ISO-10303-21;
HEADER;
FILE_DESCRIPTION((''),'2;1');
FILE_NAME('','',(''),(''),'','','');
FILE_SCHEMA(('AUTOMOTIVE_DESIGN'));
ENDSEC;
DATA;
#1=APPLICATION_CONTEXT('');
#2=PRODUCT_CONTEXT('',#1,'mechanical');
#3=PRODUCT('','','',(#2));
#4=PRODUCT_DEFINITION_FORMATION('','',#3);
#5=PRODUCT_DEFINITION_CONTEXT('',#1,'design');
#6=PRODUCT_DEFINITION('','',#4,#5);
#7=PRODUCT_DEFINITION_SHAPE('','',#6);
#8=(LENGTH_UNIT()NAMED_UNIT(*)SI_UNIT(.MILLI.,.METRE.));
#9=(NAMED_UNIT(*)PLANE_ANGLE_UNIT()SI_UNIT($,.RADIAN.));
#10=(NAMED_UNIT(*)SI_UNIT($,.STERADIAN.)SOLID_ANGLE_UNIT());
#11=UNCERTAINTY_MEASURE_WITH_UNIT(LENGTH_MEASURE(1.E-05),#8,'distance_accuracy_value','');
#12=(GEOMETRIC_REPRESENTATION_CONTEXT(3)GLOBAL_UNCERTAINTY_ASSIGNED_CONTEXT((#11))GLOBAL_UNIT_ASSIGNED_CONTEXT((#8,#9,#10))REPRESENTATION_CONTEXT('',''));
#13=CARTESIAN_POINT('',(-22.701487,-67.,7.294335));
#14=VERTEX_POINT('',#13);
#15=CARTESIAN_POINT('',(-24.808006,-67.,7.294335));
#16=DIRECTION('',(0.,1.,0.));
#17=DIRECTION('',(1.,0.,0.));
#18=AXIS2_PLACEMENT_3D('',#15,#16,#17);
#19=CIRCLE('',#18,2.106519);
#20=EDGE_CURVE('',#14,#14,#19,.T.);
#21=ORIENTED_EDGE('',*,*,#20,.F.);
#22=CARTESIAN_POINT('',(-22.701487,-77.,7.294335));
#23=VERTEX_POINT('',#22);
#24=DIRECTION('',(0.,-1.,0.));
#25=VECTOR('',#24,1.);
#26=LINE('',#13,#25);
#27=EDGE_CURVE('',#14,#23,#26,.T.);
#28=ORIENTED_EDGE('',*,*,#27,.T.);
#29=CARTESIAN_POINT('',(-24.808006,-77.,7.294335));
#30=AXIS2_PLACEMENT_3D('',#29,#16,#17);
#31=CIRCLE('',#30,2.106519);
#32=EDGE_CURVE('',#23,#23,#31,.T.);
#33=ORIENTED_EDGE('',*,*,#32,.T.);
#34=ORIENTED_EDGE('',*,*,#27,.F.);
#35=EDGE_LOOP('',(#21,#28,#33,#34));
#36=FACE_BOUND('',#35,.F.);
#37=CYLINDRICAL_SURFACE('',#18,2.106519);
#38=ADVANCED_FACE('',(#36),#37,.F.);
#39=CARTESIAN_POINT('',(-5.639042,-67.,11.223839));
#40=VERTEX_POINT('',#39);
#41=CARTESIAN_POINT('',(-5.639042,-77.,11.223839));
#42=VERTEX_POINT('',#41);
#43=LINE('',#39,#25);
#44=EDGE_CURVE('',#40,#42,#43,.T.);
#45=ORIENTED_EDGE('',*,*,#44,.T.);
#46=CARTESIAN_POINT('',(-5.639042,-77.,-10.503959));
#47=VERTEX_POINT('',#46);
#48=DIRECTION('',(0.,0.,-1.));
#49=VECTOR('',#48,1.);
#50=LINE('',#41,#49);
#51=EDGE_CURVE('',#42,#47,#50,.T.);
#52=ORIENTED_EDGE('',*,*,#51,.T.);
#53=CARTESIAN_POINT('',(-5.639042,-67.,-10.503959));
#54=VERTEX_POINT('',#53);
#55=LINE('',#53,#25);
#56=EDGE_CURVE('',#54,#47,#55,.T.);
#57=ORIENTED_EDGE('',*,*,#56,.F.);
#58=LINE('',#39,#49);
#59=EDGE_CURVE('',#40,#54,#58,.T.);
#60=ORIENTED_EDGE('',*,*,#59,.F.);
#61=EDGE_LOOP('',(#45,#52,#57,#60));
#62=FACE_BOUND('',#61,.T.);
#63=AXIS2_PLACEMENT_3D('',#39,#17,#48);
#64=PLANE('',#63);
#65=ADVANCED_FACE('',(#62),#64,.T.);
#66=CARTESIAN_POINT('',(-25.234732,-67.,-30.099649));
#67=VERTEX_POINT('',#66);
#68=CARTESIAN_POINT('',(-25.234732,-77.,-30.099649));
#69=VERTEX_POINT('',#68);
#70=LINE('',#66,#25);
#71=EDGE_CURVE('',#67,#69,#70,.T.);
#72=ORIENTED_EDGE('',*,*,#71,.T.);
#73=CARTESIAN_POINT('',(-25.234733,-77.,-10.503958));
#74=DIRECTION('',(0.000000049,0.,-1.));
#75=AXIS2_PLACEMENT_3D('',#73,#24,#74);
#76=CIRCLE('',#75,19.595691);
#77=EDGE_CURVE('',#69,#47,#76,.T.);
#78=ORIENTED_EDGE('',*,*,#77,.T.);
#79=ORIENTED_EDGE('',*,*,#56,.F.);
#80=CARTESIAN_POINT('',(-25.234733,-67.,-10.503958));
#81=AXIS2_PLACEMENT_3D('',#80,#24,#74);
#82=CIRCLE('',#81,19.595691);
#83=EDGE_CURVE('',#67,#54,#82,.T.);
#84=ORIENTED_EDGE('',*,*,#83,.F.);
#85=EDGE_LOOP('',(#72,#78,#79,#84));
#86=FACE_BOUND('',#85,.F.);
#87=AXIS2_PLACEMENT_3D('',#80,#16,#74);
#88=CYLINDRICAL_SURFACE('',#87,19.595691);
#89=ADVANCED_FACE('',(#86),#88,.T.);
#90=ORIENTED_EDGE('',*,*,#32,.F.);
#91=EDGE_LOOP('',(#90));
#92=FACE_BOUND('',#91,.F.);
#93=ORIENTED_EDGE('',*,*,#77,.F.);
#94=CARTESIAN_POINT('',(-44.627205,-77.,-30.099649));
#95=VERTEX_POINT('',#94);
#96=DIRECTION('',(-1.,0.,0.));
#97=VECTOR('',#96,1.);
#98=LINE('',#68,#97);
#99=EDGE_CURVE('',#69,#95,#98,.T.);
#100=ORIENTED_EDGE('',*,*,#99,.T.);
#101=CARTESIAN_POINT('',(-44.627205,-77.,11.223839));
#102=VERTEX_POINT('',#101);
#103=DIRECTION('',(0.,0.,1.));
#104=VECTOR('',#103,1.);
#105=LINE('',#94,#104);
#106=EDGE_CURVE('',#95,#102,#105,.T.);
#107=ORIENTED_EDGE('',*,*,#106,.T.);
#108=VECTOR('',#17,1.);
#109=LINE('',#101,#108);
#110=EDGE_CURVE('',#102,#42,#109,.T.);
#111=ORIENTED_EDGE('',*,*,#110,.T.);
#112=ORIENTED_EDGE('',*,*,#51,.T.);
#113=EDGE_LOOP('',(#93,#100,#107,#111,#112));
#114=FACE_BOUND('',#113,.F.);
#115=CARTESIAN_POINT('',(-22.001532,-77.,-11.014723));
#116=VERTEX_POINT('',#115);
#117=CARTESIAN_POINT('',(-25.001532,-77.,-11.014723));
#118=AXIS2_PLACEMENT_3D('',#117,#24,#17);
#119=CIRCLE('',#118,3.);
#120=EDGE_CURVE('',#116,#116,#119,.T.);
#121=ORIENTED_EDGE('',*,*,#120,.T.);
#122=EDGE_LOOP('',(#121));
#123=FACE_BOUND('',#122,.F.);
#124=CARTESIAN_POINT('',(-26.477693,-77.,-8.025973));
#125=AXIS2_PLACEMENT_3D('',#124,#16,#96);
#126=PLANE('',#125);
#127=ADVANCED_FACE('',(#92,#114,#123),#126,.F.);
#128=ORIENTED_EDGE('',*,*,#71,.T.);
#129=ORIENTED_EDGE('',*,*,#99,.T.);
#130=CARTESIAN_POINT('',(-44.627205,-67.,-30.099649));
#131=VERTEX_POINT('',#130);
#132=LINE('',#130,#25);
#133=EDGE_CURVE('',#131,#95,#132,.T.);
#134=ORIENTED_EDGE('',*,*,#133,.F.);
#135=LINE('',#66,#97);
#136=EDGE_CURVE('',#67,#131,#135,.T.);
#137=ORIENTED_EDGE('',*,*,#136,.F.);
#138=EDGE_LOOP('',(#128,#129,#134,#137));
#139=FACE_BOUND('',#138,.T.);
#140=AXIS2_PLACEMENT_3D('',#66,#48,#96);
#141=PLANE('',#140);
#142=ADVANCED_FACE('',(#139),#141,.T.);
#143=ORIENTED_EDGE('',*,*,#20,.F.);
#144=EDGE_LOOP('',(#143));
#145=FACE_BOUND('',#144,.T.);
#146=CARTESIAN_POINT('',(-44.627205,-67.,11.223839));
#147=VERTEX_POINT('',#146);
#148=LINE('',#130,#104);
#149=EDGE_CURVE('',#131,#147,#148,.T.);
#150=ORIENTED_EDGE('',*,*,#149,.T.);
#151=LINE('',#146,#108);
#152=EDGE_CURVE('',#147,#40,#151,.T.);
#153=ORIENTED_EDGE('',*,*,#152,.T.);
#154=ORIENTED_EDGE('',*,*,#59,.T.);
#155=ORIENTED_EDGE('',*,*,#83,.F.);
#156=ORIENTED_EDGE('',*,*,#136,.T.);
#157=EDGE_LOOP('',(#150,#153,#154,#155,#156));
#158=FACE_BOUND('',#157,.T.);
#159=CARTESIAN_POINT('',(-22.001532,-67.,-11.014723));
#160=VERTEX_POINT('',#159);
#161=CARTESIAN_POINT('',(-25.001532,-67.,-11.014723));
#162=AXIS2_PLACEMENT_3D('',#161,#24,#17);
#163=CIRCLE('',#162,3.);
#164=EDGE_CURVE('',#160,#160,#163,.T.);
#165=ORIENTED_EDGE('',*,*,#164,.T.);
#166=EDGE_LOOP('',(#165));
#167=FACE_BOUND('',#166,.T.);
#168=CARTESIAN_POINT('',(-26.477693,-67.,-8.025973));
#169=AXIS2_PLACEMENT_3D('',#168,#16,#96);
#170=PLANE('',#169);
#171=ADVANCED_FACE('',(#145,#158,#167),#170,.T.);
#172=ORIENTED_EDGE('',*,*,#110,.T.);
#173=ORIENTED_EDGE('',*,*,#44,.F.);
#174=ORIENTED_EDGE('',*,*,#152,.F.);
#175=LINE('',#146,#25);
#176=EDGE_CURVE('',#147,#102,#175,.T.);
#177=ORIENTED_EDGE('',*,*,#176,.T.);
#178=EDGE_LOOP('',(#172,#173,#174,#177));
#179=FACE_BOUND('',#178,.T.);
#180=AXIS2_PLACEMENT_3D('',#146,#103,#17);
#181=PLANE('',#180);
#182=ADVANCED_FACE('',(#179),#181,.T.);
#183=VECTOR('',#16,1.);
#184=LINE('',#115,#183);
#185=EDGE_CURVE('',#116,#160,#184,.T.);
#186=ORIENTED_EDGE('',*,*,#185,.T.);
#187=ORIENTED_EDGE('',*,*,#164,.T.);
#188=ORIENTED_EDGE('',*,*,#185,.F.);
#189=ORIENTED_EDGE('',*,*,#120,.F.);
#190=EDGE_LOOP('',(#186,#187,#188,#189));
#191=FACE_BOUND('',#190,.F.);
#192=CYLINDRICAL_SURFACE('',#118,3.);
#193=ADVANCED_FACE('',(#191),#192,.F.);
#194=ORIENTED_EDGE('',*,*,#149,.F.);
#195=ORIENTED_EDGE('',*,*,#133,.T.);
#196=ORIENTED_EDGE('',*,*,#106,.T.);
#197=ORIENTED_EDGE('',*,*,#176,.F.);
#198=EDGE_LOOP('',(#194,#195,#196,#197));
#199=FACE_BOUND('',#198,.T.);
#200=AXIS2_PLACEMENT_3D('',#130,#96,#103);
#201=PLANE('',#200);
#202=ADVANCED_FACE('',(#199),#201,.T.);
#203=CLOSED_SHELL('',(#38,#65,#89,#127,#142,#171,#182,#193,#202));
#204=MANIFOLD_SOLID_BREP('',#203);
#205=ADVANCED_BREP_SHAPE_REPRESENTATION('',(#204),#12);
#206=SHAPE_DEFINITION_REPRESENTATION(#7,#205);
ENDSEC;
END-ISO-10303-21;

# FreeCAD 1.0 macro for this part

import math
import FreeCAD as App
import Part
import Sketcher

doc = App.newDocument("Part")
body = doc.addObject("PartDesign::Body", "Body")

# Sketch on XZ plane
sketch1 = body.newObject("Sketcher::SketchObject", "Sketch")
sketch1.AttachmentSupport = (doc.getObject("XZ_Plane"), [""])
sketch1.MapMode = "FlatFace"
sketch1.AttachmentOffset = App.Placement(App.Vector(0, 0, 67), App.Rotation())
sketch1.addGeometry([
    Part.LineSegment(App.Vector(-6, 4, 0), App.Vector(-45, 4, 0)),  # 0
    Part.LineSegment(App.Vector(-45, 4, 0), App.Vector(-45, -37, 0)),  # 1
    Part.LineSegment(App.Vector(-45, -37, 0), App.Vector(-25, -37, 0)),  # 2
    Part.ArcOfCircle(Part.Circle(App.Vector(-25, -18, 0), App.Vector(0, 0, 1), 20), math.radians(-90), math.radians(0)),  # 3
    Part.LineSegment(App.Vector(-6, -18, 0), App.Vector(-6, 4, 0)),  # 4
], False)
sketch1.addConstraint([
    Sketcher.Constraint("Coincident", 0, 2, 1, 1),
    Sketcher.Constraint("Coincident", 1, 2, 2, 1),
    Sketcher.Constraint("Tangent", 2, 2, 3, 1),
    Sketcher.Constraint("Tangent", 3, 2, 4, 1),
    Sketcher.Constraint("Coincident", 4, 2, 0, 1),
    Sketcher.Constraint("Horizontal", 0),
    Sketcher.Constraint("Vertical", 1),
    Sketcher.Constraint("Horizontal", 2),
    Sketcher.Constraint("Vertical", 4),
    Sketcher.Constraint("Radius", 3, 19.595691),
    Sketcher.Constraint("DistanceY", 4, 1, 4, 2, 21.727798),
    Sketcher.Constraint("DistanceX", 0, 2, 0, 1, 38.988163),
    Sketcher.Constraint("DistanceY", 3, 3, -1, 1, 17.503958),
    Sketcher.Constraint("DistanceX", 3, 3, -1, 1, 25.234733),
])
pad1 = body.newObject("PartDesign::Pad", "Pad")
pad1.Profile = sketch1
pad1.Length = 10

# Sketch on XZ plane
sketch2 = body.newObject("Sketcher::SketchObject", "Sketch001")
sketch2.AttachmentSupport = (doc.getObject("XZ_Plane"), [""])
sketch2.MapMode = "FlatFace"
sketch2.AttachmentOffset = App.Placement(App.Vector(0, 0, 67), App.Rotation())
sketch2.addGeometry(Part.Circle(App.Vector(-24.8, 0.3, 0), App.Vector(0, 0, 1), 2.1), False)
sketch2.addConstraint([
    Sketcher.Constraint("Diameter", 0, 4.213038),
    Sketcher.Constraint("DistanceX", 0, 3, -1, 1, 24.808006),
    Sketcher.Constraint("DistanceY", -1, 1, 0, 3, 0.294335),
])
pocket1 = body.newObject("PartDesign::Pocket", "Pocket")
pocket1.Profile = sketch2
pocket1.Type = "ThroughAll"
pocket1.Reversed = True

# Sketch on XZ plane
sketch3 = body.newObject("Sketcher::SketchObject", "Sketch002")
sketch3.AttachmentSupport = (doc.getObject("XZ_Plane"), [""])
sketch3.MapMode = "FlatFace"
sketch3.AttachmentOffset = App.Placement(App.Vector(0, 0, 77), App.Rotation())
sketch3.addGeometry(Part.Circle(App.Vector(-25, -18, 0), App.Vector(0, 0, 1), 3), False)
sketch3.addConstraint([
    Sketcher.Constraint("Diameter", 0, 6.0),
    Sketcher.Constraint("DistanceX", 0, 3, -1, 1, 25.001532),
    Sketcher.Constraint("DistanceY", 0, 3, -1, 1, 18.014723),
])
pocket2 = body.newObject("PartDesign::Pocket", "Pocket001")
pocket2.Profile = sketch3
pocket2.Type = "ThroughAll"
body2 = doc.addObject("PartDesign::Body", "Body001")
doc.recompute()

body.Placement = App.Placement(App.Vector(0, 0, 7), App.Rotation(App.Vector(0, 0, 1), 0))
boolean = body2.newObject("PartDesign::Boolean", "Boolean")
boolean.Type = "Fuse"
boolean.addObjects([body])

doc.recompute()
